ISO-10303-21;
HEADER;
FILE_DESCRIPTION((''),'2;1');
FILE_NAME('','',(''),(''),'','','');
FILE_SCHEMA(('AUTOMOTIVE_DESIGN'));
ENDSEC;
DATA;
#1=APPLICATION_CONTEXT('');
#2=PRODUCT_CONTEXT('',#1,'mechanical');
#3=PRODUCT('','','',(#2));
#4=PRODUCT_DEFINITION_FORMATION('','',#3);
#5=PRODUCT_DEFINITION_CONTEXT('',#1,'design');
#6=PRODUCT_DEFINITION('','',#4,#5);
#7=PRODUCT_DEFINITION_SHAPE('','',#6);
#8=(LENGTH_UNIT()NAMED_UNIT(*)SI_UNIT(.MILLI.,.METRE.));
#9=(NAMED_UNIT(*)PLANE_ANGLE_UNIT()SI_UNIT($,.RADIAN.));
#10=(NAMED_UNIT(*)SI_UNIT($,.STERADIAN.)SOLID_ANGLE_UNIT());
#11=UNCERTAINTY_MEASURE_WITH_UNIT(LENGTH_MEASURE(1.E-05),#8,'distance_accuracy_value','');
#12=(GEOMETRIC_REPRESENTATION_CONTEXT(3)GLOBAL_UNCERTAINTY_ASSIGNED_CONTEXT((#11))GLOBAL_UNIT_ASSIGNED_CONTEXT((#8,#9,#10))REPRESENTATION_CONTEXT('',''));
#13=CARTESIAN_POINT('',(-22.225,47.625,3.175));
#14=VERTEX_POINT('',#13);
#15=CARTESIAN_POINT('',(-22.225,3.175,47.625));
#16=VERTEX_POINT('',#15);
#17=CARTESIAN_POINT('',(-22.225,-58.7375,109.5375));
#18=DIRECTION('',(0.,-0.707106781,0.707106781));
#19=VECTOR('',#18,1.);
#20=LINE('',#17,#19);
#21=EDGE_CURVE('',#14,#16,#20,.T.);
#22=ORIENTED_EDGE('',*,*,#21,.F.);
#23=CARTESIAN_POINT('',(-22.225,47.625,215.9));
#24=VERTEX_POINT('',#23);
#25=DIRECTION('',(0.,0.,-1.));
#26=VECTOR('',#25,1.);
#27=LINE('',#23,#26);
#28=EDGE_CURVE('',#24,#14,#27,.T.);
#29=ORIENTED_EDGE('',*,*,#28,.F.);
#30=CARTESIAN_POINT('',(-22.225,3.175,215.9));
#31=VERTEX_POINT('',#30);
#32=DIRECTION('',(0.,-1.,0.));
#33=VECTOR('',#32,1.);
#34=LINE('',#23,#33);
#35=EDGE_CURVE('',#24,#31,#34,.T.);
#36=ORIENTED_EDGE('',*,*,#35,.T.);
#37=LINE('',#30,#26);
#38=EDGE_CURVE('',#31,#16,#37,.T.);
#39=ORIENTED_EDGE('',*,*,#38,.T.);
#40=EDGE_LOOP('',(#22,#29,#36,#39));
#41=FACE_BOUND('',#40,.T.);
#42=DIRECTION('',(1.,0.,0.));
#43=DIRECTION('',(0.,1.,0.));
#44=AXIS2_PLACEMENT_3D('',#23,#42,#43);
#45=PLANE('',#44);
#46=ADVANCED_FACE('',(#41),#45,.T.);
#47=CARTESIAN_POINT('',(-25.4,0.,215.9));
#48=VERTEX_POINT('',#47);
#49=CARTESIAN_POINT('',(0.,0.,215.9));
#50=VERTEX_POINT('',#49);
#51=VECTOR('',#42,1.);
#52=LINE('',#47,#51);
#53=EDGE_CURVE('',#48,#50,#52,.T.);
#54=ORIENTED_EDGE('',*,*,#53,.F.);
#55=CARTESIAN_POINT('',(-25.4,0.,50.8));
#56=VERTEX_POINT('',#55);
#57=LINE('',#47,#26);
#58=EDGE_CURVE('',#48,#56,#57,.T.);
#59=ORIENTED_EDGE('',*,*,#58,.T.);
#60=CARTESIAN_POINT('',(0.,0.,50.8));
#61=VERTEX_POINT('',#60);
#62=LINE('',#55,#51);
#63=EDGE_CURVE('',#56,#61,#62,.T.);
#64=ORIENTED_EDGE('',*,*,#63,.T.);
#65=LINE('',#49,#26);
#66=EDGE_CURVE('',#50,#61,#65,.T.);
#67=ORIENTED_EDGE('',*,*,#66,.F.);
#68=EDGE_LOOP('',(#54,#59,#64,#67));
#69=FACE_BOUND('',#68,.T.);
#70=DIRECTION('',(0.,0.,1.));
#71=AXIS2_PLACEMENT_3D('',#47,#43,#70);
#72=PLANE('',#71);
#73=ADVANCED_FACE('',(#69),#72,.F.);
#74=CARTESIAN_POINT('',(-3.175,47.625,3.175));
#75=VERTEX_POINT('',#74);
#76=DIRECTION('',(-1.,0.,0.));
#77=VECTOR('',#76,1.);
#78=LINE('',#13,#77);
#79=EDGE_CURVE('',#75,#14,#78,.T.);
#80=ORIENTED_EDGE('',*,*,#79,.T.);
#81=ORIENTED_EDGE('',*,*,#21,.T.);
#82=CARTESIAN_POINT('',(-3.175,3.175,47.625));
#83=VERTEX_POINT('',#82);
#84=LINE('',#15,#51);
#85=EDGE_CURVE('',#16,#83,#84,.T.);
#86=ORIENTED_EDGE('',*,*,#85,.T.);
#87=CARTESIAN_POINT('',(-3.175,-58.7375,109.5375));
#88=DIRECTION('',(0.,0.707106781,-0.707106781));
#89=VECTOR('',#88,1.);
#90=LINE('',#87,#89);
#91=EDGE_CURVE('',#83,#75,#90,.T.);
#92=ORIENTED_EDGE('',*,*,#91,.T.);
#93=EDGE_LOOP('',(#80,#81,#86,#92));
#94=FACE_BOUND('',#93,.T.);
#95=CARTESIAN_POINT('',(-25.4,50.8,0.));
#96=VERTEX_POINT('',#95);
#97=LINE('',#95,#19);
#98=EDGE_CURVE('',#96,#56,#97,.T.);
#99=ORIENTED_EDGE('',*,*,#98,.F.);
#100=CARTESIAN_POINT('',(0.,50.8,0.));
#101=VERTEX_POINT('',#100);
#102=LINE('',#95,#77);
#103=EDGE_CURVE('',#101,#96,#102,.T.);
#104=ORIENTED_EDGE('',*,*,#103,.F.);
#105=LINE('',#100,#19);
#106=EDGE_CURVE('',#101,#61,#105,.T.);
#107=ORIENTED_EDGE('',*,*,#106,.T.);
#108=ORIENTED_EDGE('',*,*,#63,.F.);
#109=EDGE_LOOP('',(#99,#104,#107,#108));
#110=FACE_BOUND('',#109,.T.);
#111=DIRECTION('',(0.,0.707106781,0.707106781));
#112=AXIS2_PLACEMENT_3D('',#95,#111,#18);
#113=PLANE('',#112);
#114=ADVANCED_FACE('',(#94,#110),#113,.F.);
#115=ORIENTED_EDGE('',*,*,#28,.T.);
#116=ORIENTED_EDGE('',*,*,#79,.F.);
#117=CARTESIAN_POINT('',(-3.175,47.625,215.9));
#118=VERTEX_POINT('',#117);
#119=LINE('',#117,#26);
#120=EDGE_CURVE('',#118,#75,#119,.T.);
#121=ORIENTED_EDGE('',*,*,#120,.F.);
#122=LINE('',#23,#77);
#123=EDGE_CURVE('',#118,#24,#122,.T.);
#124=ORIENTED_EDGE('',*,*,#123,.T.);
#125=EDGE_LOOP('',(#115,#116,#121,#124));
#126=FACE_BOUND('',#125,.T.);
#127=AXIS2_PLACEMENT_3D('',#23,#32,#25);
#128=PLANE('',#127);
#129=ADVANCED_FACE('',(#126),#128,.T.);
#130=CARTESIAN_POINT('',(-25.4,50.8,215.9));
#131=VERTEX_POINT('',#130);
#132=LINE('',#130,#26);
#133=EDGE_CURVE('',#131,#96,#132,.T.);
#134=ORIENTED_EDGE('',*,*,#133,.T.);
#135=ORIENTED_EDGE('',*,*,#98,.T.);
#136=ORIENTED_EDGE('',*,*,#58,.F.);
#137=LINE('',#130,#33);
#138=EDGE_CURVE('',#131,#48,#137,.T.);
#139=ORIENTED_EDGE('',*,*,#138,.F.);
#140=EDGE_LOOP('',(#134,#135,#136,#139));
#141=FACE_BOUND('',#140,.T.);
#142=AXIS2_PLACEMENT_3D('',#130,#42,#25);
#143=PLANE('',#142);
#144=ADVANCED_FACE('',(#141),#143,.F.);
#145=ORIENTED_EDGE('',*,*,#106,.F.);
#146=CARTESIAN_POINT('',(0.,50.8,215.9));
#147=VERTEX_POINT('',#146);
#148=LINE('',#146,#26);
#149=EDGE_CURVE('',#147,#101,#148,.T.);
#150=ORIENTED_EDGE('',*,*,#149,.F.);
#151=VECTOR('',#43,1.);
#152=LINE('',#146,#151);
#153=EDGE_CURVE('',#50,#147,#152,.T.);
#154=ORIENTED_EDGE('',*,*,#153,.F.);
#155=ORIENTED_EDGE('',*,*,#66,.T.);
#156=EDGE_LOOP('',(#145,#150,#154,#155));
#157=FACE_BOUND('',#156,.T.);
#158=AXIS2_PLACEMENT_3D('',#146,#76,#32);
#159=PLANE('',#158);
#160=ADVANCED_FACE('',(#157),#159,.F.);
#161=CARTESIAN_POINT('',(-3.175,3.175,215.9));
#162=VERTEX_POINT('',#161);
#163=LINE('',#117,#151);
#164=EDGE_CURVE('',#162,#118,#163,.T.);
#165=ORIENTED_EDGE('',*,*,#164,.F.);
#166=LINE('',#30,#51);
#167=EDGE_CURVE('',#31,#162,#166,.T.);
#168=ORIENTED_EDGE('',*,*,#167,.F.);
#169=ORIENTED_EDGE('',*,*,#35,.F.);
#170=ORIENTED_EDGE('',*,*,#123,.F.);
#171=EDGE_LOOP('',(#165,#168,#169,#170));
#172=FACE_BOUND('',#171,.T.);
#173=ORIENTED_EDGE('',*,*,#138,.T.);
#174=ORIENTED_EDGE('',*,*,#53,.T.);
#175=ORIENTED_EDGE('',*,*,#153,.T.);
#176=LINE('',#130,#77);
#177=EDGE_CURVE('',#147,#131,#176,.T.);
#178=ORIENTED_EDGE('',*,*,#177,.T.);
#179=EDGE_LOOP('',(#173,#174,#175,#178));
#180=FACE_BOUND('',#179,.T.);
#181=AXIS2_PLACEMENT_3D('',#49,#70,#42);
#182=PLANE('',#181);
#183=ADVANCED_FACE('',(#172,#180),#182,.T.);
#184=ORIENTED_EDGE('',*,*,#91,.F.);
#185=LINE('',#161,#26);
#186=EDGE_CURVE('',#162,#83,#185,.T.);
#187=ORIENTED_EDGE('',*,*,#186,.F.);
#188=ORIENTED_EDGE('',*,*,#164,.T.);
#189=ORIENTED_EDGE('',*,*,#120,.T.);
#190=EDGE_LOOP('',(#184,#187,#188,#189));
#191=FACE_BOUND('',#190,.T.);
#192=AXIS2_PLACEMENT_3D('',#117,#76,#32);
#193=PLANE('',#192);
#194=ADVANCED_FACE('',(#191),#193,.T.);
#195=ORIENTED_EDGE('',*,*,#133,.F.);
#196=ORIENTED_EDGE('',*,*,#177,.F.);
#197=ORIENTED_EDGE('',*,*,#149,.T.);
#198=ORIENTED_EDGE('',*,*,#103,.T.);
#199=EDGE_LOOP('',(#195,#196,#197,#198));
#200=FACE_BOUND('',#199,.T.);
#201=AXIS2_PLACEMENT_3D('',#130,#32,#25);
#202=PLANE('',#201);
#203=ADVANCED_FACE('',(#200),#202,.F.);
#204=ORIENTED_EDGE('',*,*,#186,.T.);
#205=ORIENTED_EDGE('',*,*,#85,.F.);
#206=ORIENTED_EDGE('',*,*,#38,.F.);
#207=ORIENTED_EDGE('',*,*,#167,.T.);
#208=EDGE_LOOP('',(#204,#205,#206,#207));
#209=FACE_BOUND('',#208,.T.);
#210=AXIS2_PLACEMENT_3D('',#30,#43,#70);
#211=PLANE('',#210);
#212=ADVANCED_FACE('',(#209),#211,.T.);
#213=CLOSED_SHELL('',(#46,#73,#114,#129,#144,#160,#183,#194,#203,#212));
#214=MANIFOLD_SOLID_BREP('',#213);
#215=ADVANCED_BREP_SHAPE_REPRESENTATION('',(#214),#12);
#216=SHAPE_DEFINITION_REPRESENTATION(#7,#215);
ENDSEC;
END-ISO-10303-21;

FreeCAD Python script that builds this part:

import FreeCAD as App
import Part
import Sketcher
Q = App.Units.Quantity


def add_polygon(sketch, points):
    """Adds a closed chain of lines whose ends are joined by coincident constraints."""
    first, n = sketch.GeometryCount, len(points)
    for a, b in zip(points, points[1:] + points[:1]):
        sketch.addGeometry(Part.LineSegment(App.Vector(*a, 0), App.Vector(*b, 0)), False)
    for i in range(n):
        sketch.addConstraint(Sketcher.Constraint("Coincident", first + i, 2, first + (i + 1) % n, 1))

doc = App.newDocument("Part")
params = doc.addObject("Spreadsheet::Sheet", "Params")
for row, (alias, value) in enumerate([
    ("sketch1_width", "1 in"),
    ("sketch1_height", "2 in"),
    ("sketch1_width2", "0.75 in"),
    ("sketch1_height2", "1.75 in"),
    ("pad1_length", "8.5 in"),
    ("sketch2_width", "2 in"),
    ("pocket1_length", "1 in"),
], start=1):
    params.set(f"A{row}", alias)
    params.set(f"B{row}", "=" + value)
    params.setAlias(f"B{row}", alias)

body = doc.addObject("PartDesign::Body", "Body")

# Sketch on XY plane
sketch1 = body.newObject("Sketcher::SketchObject", "Sketch")
sketch1.AttachmentSupport = (doc.getObject("XY_Plane"), [""])
sketch1.MapMode = "FlatFace"
add_polygon(sketch1, [(-25, 51), (-25, 0), (0, 0), (0, 51)])  # lines 0-3
add_polygon(sketch1, [(-3, 3), (-22, 3), (-22, 48), (-3, 48)])  # lines 4-7
sketch1.addConstraint([
    Sketcher.Constraint("Vertical", 0),
    Sketcher.Constraint("Horizontal", 1),
    Sketcher.Constraint("Vertical", 2),
    Sketcher.Constraint("Horizontal", 3),
    Sketcher.Constraint("Horizontal", 4),
    Sketcher.Constraint("Vertical", 5),
    Sketcher.Constraint("Horizontal", 6),
    Sketcher.Constraint("Vertical", 7),
    Sketcher.Constraint("Coincident", 1, 2, -1, 1),
    Sketcher.Constraint("DistanceX", 1, 1, 1, 2, Q("1 in")),
    Sketcher.Constraint("DistanceY", 0, 2, 0, 1, Q("2 in")),
    Sketcher.Constraint("DistanceX", 4, 2, 4, 1, Q("0.75 in")),
    Sketcher.Constraint("DistanceY", 5, 1, 5, 2, Q("1.75 in")),
    Sketcher.Constraint("DistanceX", 4, 2, -1, 1, Q("0.875 in")),
    Sketcher.Constraint("DistanceY", -1, 1, 4, 2, Q("0.125 in")),
])
sketch1.setExpression("Constraints[17]", "Params.sketch1_width")
sketch1.setExpression("Constraints[18]", "Params.sketch1_height")
sketch1.setExpression("Constraints[19]", "Params.sketch1_width2")
sketch1.setExpression("Constraints[20]", "Params.sketch1_height2")
pad1 = body.newObject("PartDesign::Pad", "Pad")
pad1.Profile = sketch1
pad1.setExpression("Length", "Params.pad1_length")

# Sketch on YZ plane
sketch2 = body.newObject("Sketcher::SketchObject", "Sketch001")
sketch2.AttachmentSupport = (doc.getObject("YZ_Plane"), [""])
sketch2.MapMode = "FlatFace"
add_polygon(sketch2, [(51, 0), (0, 51), (0, 0)])  # lines 0-2
sketch2.addConstraint([
    Sketcher.Constraint("Vertical", 1),
    Sketcher.Constraint("Horizontal", 2),
    Sketcher.Constraint("Coincident", 1, 2, -1, 1),
    Sketcher.Constraint("Equal", 2, 1),
    Sketcher.Constraint("DistanceX", 2, 1, 2, 2, Q("2 in")),
])
sketch2.setExpression("Constraints[7]", "Params.sketch2_width")
pocket1 = body.newObject("PartDesign::Pocket", "Pocket")
pocket1.Profile = sketch2
pocket1.setExpression("Length", "Params.pocket1_length")

doc.recompute()
